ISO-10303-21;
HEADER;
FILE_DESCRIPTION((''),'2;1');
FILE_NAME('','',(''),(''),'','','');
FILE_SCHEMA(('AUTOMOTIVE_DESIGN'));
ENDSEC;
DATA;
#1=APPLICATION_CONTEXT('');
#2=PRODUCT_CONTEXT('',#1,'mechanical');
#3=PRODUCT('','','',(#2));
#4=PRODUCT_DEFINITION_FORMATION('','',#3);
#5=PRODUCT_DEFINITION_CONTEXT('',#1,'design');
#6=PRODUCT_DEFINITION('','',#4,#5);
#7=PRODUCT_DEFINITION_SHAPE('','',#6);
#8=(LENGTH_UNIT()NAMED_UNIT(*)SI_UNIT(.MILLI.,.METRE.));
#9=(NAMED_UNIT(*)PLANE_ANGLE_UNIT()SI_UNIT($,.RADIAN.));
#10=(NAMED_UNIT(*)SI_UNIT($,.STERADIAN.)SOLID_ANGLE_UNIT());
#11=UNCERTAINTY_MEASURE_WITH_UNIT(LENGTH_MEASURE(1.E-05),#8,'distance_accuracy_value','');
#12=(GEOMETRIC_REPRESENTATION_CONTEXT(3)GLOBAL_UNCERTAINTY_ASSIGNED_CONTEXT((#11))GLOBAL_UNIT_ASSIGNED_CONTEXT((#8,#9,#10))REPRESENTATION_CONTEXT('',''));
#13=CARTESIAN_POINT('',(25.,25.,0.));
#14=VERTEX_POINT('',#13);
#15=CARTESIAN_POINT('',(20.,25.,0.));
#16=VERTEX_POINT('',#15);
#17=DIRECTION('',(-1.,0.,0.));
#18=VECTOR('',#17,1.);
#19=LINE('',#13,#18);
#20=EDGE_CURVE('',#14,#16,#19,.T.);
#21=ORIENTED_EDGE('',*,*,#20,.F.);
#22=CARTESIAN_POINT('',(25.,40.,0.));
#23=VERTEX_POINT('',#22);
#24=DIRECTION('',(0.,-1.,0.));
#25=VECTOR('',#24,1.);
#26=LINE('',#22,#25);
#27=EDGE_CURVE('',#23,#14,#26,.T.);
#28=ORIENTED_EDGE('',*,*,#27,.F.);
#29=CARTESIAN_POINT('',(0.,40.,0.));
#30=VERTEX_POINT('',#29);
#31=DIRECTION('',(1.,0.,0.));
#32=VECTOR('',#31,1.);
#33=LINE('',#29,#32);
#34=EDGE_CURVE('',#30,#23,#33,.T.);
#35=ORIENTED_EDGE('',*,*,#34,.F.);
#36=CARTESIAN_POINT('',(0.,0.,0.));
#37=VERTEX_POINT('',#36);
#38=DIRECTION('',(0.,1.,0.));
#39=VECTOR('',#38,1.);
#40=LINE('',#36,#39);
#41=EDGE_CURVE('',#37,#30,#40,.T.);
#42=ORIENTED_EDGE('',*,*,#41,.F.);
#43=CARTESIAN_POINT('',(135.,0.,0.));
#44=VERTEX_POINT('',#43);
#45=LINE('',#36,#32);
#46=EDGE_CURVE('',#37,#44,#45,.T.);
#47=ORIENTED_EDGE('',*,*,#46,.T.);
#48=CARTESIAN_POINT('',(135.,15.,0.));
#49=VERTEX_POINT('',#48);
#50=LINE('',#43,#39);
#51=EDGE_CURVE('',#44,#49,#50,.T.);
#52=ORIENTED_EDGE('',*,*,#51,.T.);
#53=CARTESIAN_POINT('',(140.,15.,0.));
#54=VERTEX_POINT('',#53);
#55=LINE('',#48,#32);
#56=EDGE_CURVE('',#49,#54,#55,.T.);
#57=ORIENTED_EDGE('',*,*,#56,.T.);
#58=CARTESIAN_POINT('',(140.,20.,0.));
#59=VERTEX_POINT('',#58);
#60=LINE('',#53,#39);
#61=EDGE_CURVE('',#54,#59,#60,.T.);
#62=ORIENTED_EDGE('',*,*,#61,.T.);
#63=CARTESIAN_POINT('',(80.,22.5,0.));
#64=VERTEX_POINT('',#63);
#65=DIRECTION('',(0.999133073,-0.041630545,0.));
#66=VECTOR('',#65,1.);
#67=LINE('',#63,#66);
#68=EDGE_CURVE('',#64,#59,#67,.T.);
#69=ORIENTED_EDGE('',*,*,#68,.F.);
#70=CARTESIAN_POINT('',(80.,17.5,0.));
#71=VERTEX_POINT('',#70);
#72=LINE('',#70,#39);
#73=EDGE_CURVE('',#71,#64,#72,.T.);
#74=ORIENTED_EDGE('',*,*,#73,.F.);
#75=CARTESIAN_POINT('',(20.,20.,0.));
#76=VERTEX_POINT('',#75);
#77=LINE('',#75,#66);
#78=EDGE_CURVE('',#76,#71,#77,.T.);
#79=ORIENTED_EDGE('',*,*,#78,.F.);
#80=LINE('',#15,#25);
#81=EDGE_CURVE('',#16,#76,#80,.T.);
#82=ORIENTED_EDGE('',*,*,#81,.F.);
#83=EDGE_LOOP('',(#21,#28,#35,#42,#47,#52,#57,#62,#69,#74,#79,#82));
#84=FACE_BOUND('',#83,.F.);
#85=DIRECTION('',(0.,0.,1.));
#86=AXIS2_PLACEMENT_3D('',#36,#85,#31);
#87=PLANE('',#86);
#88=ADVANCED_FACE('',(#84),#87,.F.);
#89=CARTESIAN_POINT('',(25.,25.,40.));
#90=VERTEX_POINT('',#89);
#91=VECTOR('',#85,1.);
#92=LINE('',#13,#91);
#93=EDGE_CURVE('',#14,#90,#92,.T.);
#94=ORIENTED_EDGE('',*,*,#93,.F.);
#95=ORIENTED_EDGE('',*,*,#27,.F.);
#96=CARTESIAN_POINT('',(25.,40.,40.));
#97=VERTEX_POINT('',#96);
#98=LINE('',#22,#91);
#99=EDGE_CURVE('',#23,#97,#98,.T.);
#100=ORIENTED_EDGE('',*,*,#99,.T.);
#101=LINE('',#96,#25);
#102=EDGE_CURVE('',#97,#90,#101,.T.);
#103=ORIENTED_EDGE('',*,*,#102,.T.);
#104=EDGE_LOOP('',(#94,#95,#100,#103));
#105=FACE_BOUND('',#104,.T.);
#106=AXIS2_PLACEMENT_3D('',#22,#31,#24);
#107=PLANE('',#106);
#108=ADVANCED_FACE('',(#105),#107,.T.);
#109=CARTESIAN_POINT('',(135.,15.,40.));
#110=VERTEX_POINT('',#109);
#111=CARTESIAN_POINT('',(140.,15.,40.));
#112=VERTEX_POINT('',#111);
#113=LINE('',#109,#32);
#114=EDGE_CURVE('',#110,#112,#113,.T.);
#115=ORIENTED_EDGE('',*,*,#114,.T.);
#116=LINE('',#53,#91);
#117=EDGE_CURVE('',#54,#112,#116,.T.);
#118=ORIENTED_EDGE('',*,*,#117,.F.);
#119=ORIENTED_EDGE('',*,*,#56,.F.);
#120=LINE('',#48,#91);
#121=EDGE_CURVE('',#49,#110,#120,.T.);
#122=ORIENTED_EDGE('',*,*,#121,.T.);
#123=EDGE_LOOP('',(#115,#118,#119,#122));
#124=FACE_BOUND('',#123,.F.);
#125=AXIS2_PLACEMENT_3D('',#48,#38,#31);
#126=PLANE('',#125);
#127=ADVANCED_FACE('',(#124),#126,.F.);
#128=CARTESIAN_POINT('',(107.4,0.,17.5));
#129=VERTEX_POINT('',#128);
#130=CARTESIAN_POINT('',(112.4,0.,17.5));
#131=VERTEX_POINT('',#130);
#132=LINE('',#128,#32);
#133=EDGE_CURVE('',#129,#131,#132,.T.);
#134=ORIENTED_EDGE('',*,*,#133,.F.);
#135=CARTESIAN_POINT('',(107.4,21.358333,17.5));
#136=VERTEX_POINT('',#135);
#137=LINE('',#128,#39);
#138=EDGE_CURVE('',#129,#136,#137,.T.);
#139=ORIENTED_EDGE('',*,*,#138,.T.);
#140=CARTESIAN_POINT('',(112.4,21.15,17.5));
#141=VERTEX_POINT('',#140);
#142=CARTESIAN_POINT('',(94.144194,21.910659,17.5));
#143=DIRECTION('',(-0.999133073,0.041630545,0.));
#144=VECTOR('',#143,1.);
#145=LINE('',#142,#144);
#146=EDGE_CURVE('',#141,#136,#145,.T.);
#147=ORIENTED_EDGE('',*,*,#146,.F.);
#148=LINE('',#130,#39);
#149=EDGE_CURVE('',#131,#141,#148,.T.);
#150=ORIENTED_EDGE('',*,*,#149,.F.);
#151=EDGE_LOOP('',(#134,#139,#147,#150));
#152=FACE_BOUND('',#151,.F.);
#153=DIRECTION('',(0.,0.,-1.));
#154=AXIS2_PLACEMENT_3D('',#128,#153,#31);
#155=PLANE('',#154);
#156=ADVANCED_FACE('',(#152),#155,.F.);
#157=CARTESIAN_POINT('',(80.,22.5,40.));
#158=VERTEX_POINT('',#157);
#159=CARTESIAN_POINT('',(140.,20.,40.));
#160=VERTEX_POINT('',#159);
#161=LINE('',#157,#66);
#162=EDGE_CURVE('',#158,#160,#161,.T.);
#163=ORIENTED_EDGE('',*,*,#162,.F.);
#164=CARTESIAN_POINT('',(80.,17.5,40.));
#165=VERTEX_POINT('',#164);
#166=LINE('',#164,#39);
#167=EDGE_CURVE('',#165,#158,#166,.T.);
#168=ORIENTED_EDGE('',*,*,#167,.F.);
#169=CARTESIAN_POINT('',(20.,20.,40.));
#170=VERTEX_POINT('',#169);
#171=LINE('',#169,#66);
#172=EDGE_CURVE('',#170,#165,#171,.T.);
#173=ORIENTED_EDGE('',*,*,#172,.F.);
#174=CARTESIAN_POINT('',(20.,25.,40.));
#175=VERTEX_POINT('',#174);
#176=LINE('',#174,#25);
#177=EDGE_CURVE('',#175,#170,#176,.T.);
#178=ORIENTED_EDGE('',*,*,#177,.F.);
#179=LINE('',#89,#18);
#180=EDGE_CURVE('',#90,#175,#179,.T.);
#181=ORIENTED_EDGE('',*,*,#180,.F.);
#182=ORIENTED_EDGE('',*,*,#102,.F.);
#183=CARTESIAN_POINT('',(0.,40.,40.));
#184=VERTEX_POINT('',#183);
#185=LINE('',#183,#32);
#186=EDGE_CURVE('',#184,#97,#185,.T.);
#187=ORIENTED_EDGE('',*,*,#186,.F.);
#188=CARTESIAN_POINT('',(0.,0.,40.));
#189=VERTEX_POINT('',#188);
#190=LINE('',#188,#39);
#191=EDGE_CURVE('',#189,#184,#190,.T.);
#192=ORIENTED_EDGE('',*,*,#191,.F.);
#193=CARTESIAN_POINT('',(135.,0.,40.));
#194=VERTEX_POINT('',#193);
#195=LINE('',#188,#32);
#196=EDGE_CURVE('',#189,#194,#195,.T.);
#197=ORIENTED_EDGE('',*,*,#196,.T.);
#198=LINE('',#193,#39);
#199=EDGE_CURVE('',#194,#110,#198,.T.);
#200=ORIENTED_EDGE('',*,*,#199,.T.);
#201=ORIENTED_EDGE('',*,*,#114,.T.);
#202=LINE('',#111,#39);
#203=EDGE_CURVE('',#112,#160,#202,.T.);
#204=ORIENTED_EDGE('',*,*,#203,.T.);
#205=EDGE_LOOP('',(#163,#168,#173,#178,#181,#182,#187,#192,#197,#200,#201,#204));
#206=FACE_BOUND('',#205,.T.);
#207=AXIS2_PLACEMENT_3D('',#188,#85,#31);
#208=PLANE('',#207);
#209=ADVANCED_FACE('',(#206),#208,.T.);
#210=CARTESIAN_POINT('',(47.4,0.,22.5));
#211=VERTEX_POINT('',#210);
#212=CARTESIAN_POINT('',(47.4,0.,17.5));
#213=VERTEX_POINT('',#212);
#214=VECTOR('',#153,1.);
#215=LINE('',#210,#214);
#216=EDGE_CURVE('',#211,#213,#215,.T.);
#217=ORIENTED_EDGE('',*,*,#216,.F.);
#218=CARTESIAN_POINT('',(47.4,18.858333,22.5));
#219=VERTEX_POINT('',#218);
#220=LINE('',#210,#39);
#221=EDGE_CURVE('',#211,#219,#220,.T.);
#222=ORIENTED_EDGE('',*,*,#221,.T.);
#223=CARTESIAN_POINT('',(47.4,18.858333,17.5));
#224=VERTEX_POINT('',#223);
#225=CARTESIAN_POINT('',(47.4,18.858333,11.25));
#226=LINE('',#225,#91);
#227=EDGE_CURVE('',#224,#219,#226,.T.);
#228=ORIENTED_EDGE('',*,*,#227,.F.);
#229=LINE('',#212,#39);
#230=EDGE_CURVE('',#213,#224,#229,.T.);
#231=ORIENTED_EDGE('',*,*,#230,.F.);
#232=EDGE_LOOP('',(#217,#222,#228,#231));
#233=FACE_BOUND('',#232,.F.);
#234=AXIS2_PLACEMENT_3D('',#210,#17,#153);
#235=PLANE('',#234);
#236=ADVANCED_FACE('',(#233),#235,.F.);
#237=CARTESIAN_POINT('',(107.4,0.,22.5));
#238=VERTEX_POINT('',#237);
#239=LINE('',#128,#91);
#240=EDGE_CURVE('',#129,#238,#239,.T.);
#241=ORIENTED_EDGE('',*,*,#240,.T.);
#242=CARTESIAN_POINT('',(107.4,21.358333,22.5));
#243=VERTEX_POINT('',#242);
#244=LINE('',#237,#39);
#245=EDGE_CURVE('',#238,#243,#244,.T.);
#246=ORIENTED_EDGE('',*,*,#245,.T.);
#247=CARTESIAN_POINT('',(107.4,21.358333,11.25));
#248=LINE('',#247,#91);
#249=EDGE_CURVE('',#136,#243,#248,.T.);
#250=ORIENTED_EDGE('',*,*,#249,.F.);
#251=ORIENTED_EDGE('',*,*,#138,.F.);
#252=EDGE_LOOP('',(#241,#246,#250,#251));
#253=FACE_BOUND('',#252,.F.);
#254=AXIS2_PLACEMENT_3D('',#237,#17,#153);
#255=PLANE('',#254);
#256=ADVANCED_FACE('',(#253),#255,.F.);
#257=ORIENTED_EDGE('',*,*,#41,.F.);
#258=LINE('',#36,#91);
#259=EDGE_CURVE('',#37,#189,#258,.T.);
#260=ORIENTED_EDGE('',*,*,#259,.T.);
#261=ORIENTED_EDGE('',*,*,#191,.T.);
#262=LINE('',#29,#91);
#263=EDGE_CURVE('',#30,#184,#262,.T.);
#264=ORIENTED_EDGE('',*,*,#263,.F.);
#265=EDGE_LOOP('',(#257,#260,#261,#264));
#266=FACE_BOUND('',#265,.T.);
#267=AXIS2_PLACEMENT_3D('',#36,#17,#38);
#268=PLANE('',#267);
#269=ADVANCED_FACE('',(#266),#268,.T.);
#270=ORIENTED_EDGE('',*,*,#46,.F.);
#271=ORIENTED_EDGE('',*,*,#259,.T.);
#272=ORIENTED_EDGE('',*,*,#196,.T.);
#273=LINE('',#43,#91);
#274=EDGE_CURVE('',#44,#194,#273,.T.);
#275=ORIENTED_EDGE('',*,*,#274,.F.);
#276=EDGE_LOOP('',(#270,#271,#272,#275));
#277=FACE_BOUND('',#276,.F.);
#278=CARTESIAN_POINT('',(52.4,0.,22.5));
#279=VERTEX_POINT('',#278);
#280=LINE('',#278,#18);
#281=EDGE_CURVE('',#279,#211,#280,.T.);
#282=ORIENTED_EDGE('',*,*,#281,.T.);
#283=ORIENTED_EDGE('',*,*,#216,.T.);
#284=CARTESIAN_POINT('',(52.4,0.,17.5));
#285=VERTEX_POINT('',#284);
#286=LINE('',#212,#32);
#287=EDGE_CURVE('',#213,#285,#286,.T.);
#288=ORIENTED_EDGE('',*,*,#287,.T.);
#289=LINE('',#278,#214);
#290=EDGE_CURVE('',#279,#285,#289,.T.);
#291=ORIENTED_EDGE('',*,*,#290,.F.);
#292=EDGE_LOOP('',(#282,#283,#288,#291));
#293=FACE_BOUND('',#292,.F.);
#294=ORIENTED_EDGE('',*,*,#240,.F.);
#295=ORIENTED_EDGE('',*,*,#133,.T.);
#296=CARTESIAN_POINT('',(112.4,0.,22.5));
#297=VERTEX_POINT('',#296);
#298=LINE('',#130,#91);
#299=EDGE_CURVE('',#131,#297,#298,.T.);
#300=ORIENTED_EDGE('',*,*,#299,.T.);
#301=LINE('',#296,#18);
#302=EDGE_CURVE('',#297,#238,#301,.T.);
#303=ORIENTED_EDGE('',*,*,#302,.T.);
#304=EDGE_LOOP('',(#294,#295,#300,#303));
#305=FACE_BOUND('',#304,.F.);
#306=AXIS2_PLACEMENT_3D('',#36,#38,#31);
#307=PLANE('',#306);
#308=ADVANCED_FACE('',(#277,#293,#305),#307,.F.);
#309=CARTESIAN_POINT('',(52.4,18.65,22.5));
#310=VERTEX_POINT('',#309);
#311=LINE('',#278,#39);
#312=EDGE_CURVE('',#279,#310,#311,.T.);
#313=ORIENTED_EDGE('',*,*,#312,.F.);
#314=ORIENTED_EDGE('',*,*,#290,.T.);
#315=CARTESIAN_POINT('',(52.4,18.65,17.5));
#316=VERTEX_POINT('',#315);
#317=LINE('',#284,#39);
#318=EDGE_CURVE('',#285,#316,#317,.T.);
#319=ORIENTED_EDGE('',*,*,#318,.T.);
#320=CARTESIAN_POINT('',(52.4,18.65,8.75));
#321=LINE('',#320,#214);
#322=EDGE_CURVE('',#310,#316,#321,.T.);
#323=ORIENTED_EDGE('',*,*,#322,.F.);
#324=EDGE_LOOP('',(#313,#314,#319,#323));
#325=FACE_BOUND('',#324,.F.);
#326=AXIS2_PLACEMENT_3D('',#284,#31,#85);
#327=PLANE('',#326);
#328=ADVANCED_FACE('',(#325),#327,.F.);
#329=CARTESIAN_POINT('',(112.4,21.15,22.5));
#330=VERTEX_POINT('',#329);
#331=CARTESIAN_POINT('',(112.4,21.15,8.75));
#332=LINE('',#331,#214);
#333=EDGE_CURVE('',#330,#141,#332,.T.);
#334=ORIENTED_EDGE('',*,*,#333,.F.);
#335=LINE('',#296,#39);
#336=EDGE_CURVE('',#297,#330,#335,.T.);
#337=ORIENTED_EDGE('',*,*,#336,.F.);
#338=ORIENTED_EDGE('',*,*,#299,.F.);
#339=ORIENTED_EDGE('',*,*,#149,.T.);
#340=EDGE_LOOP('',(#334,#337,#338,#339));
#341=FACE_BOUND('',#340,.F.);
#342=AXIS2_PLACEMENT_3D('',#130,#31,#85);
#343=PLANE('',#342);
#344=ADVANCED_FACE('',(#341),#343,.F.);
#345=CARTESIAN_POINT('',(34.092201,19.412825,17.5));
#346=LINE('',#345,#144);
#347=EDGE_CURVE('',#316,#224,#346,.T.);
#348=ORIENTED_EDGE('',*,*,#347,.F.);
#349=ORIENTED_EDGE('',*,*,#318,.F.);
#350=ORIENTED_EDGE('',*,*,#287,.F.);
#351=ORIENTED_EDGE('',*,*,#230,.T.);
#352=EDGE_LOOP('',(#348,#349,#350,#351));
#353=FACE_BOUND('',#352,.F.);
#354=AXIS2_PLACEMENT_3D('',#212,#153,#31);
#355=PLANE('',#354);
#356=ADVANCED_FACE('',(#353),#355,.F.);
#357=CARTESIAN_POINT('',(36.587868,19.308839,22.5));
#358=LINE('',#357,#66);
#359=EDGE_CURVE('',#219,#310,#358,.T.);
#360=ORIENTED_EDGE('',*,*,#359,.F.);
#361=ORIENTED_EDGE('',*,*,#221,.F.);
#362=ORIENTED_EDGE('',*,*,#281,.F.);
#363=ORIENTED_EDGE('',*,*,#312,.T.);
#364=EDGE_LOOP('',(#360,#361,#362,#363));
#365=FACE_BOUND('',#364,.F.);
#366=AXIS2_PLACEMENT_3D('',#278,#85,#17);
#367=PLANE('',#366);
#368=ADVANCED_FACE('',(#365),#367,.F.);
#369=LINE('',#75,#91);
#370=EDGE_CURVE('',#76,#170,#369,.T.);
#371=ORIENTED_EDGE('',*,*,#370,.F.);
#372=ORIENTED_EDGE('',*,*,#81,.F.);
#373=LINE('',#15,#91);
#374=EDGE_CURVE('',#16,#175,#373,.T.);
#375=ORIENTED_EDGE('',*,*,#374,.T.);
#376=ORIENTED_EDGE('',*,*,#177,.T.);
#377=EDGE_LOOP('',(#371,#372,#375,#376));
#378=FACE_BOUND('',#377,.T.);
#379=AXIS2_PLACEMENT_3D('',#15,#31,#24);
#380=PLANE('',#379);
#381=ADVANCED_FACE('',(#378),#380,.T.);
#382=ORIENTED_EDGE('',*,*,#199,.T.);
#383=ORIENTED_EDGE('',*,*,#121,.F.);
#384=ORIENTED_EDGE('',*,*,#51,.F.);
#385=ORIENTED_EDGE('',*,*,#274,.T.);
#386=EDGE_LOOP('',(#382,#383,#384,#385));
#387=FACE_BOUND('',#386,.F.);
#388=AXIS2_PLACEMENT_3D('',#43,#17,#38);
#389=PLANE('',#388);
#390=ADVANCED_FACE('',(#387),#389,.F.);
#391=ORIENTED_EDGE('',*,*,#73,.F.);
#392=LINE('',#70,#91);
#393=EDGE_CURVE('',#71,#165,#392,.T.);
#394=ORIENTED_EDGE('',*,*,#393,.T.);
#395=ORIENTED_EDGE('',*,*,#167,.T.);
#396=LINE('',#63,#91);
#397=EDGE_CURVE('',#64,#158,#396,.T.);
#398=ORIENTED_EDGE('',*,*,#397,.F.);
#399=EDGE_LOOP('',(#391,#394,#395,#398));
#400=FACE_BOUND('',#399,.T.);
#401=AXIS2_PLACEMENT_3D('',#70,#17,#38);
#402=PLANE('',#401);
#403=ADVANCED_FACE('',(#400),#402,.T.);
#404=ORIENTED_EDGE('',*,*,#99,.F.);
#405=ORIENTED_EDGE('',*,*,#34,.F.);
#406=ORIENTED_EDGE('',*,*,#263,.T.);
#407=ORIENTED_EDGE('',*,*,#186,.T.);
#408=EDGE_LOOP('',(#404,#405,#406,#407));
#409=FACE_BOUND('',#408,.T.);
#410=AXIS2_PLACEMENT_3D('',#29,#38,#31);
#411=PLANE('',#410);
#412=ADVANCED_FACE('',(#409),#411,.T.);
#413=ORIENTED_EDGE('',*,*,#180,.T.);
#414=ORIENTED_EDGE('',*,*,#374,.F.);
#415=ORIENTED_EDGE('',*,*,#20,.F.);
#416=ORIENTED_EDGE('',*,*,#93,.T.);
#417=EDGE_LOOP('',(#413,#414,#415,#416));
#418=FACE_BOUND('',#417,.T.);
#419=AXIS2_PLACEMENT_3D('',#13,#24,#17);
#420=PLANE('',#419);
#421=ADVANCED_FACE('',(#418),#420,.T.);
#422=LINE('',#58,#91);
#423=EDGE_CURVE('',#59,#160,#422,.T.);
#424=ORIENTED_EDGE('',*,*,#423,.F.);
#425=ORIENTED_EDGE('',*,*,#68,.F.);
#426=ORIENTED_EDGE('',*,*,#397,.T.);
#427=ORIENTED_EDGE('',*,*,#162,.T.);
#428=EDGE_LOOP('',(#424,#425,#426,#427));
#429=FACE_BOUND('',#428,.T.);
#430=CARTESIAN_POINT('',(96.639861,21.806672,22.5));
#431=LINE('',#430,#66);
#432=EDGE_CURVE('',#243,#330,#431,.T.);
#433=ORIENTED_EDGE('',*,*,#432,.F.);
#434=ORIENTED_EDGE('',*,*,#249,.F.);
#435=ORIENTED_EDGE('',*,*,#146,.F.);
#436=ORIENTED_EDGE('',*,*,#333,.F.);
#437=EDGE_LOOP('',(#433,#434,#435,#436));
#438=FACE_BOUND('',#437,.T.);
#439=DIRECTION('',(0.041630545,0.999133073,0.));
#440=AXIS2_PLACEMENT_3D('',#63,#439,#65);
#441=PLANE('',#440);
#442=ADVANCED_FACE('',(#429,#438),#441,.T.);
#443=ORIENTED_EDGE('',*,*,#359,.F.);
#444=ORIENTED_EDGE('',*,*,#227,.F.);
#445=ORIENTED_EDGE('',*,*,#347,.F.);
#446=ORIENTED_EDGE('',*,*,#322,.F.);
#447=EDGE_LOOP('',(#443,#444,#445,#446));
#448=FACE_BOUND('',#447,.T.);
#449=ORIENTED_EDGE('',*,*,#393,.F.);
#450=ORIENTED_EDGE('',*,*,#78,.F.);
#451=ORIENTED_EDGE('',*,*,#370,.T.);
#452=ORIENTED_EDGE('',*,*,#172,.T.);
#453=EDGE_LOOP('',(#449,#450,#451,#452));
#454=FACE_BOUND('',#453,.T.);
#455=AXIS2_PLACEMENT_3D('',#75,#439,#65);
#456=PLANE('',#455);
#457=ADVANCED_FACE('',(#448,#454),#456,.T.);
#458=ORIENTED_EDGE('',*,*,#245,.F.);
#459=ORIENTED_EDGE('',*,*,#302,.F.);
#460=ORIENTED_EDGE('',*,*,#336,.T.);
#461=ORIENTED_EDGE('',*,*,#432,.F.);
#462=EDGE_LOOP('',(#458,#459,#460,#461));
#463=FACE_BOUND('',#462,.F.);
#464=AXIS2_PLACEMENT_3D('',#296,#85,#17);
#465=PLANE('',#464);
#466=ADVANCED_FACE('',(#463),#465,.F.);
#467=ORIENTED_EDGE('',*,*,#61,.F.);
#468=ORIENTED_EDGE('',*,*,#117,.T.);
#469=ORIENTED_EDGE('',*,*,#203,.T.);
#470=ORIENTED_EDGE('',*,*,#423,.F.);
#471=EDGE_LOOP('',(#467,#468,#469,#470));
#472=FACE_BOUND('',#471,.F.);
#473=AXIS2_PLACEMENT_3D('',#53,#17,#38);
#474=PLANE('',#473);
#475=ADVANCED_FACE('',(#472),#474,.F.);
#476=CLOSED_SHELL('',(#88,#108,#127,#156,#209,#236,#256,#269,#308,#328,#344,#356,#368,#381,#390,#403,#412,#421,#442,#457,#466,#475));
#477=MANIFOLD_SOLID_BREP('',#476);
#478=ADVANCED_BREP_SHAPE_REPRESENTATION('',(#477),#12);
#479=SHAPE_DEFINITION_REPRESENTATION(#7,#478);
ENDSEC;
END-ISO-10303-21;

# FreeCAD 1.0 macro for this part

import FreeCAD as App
import Part
import Sketcher
Q = App.Units.Quantity

doc = App.newDocument("Part")
body = doc.addObject("PartDesign::Body", "Body")

sketch1 = doc.addObject("Sketcher::SketchObject", "Sketch")
body.addObject(sketch1)
sketch1.AttachmentSupport = (doc.XY_Plane, [""])
sketch1.MapMode = "FlatFace"
sketch1.addGeometry([
    Part.LineSegment(App.Vector(0, 40, 0), App.Vector(0, 0, 0)),
    Part.LineSegment(App.Vector(0, 0, 0), App.Vector(135, 0, 0)),
    Part.LineSegment(App.Vector(135, 0, 0), App.Vector(135, 15, 0)),
    Part.LineSegment(App.Vector(135, 15, 0), App.Vector(140, 15, 0)),
    Part.LineSegment(App.Vector(140, 15, 0), App.Vector(140, 20, 0)),
    Part.LineSegment(App.Vector(140, 20, 0), App.Vector(80, 22.5, 0)),
    Part.LineSegment(App.Vector(80, 22.5, 0), App.Vector(80, 17.5, 0)),
    Part.LineSegment(App.Vector(80, 17.5, 0), App.Vector(20, 20, 0)),
    Part.LineSegment(App.Vector(20, 20, 0), App.Vector(20, 25, 0)),
    Part.LineSegment(App.Vector(20, 25, 0), App.Vector(25, 25, 0)),
    Part.LineSegment(App.Vector(25, 25, 0), App.Vector(25, 40, 0)),
    Part.LineSegment(App.Vector(25, 40, 0), App.Vector(0, 40, 0)),
], False)
sketch1.addConstraint([
    Sketcher.Constraint("Coincident", 0, 2, 1, 1),
    Sketcher.Constraint("Coincident", 1, 2, 2, 1),
    Sketcher.Constraint("Coincident", 2, 2, 3, 1),
    Sketcher.Constraint("Coincident", 3, 2, 4, 1),
    Sketcher.Constraint("Coincident", 4, 2, 5, 1),
    Sketcher.Constraint("Coincident", 5, 2, 6, 1),
    Sketcher.Constraint("Coincident", 6, 2, 7, 1),
    Sketcher.Constraint("Coincident", 7, 2, 8, 1),
    Sketcher.Constraint("Coincident", 8, 2, 9, 1),
    Sketcher.Constraint("Coincident", 9, 2, 10, 1),
    Sketcher.Constraint("Coincident", 10, 2, 11, 1),
    Sketcher.Constraint("Coincident", 11, 2, 0, 1),
    Sketcher.Constraint("Vertical", 0),
    Sketcher.Constraint("Horizontal", 1),
    Sketcher.Constraint("Vertical", 2),
    Sketcher.Constraint("Horizontal", 3),
    Sketcher.Constraint("Vertical", 4),
    Sketcher.Constraint("Vertical", 6),
    Sketcher.Constraint("Vertical", 8),
    Sketcher.Constraint("Horizontal", 9),
    Sketcher.Constraint("Vertical", 10),
    Sketcher.Constraint("Horizontal", 11),
    Sketcher.Constraint("Coincident", 0, 2, -1, 1),
    Sketcher.Constraint("Parallel", 5, 7),
    Sketcher.Constraint("Horizontal", 4, 2, 7, 2),
    Sketcher.Constraint("Equal", 3, 9),
    Sketcher.Constraint("Equal", 9, 4),
    Sketcher.Constraint("Equal", 4, 6),
    Sketcher.Constraint("Equal", 6, 8),
    Sketcher.Constraint("Equal", 2, 10),
    Sketcher.Constraint("Equal", 5, 7),
    Sketcher.Constraint("DistanceX", 1, 1, 1, 2, Q("135 mm")),
    Sketcher.Constraint("DistanceX", 3, 1, 3, 2, Q("5 mm")),
    Sketcher.Constraint("DistanceX", 11, 2, 11, 1, Q("25 mm")),
    Sketcher.Constraint("DistanceY", 0, 2, 0, 1, Q("40 mm")),
])
pad1 = doc.addObject("PartDesign::Pad", "Pad")
body.addObject(pad1)
pad1.Profile = sketch1
pad1.Length = 40

sketch2 = doc.addObject("Sketcher::SketchObject", "Sketch001")
body.addObject(sketch2)
sketch2.AttachmentSupport = (doc.XZ_Plane, [""])
sketch2.MapMode = "FlatFace"
sketch2.addGeometry([
    Part.LineSegment(App.Vector(52.4, 17.5, 0), App.Vector(52.4, 22.5, 0)),
    Part.LineSegment(App.Vector(52.4, 22.5, 0), App.Vector(47.4, 22.5, 0)),
    Part.LineSegment(App.Vector(47.4, 22.5, 0), App.Vector(47.4, 17.5, 0)),
    Part.LineSegment(App.Vector(47.4, 17.5, 0), App.Vector(52.4, 17.5, 0)),
    Part.LineSegment(App.Vector(107.4, 22.5, 0), App.Vector(107.4, 17.5, 0)),
    Part.LineSegment(App.Vector(107.4, 17.5, 0), App.Vector(112.4, 17.5, 0)),
    Part.LineSegment(App.Vector(112.4, 17.5, 0), App.Vector(112.4, 22.5, 0)),
    Part.LineSegment(App.Vector(112.4, 22.5, 0), App.Vector(107.4, 22.5, 0)),
], False)
sketch2.addConstraint([
    Sketcher.Constraint("Coincident", 0, 2, 1, 1),
    Sketcher.Constraint("Coincident", 1, 2, 2, 1),
    Sketcher.Constraint("Coincident", 2, 2, 3, 1),
    Sketcher.Constraint("Coincident", 3, 2, 0, 1),
    Sketcher.Constraint("Coincident", 4, 2, 5, 1),
    Sketcher.Constraint("Coincident", 5, 2, 6, 1),
    Sketcher.Constraint("Coincident", 6, 2, 7, 1),
    Sketcher.Constraint("Coincident", 7, 2, 4, 1),
    Sketcher.Constraint("Vertical", 0),
    Sketcher.Constraint("Horizontal", 1),
    Sketcher.Constraint("Vertical", 2),
    Sketcher.Constraint("Horizontal", 3),
    Sketcher.Constraint("Vertical", 4),
    Sketcher.Constraint("Horizontal", 5),
    Sketcher.Constraint("Vertical", 6),
    Sketcher.Constraint("Horizontal", 7),
    Sketcher.Constraint("Horizontal", 3, 2, 4, 2),
    Sketcher.Constraint("Horizontal", 1, 2, 6, 2),
    Sketcher.Constraint("Equal", 3, 5),
    Sketcher.Constraint("Equal", 7, 0),
    Sketcher.Constraint("DistanceX", 1, 2, 1, 1, Q("5 mm")),
    Sketcher.Constraint("DistanceX", 3, 2, 4, 2, Q("55 mm")),
    Sketcher.Constraint("DistanceX", -1, 1, 0, 2, Q("52.4 mm")),
    Sketcher.Constraint("DistanceY", -1, 1, 0, 2, Q("22.5 mm")),
])
pocket1 = doc.addObject("PartDesign::Pocket", "Pocket")
body.addObject(pocket1)
pocket1.Profile = sketch2
pocket1.Length = 40

doc.recompute()
